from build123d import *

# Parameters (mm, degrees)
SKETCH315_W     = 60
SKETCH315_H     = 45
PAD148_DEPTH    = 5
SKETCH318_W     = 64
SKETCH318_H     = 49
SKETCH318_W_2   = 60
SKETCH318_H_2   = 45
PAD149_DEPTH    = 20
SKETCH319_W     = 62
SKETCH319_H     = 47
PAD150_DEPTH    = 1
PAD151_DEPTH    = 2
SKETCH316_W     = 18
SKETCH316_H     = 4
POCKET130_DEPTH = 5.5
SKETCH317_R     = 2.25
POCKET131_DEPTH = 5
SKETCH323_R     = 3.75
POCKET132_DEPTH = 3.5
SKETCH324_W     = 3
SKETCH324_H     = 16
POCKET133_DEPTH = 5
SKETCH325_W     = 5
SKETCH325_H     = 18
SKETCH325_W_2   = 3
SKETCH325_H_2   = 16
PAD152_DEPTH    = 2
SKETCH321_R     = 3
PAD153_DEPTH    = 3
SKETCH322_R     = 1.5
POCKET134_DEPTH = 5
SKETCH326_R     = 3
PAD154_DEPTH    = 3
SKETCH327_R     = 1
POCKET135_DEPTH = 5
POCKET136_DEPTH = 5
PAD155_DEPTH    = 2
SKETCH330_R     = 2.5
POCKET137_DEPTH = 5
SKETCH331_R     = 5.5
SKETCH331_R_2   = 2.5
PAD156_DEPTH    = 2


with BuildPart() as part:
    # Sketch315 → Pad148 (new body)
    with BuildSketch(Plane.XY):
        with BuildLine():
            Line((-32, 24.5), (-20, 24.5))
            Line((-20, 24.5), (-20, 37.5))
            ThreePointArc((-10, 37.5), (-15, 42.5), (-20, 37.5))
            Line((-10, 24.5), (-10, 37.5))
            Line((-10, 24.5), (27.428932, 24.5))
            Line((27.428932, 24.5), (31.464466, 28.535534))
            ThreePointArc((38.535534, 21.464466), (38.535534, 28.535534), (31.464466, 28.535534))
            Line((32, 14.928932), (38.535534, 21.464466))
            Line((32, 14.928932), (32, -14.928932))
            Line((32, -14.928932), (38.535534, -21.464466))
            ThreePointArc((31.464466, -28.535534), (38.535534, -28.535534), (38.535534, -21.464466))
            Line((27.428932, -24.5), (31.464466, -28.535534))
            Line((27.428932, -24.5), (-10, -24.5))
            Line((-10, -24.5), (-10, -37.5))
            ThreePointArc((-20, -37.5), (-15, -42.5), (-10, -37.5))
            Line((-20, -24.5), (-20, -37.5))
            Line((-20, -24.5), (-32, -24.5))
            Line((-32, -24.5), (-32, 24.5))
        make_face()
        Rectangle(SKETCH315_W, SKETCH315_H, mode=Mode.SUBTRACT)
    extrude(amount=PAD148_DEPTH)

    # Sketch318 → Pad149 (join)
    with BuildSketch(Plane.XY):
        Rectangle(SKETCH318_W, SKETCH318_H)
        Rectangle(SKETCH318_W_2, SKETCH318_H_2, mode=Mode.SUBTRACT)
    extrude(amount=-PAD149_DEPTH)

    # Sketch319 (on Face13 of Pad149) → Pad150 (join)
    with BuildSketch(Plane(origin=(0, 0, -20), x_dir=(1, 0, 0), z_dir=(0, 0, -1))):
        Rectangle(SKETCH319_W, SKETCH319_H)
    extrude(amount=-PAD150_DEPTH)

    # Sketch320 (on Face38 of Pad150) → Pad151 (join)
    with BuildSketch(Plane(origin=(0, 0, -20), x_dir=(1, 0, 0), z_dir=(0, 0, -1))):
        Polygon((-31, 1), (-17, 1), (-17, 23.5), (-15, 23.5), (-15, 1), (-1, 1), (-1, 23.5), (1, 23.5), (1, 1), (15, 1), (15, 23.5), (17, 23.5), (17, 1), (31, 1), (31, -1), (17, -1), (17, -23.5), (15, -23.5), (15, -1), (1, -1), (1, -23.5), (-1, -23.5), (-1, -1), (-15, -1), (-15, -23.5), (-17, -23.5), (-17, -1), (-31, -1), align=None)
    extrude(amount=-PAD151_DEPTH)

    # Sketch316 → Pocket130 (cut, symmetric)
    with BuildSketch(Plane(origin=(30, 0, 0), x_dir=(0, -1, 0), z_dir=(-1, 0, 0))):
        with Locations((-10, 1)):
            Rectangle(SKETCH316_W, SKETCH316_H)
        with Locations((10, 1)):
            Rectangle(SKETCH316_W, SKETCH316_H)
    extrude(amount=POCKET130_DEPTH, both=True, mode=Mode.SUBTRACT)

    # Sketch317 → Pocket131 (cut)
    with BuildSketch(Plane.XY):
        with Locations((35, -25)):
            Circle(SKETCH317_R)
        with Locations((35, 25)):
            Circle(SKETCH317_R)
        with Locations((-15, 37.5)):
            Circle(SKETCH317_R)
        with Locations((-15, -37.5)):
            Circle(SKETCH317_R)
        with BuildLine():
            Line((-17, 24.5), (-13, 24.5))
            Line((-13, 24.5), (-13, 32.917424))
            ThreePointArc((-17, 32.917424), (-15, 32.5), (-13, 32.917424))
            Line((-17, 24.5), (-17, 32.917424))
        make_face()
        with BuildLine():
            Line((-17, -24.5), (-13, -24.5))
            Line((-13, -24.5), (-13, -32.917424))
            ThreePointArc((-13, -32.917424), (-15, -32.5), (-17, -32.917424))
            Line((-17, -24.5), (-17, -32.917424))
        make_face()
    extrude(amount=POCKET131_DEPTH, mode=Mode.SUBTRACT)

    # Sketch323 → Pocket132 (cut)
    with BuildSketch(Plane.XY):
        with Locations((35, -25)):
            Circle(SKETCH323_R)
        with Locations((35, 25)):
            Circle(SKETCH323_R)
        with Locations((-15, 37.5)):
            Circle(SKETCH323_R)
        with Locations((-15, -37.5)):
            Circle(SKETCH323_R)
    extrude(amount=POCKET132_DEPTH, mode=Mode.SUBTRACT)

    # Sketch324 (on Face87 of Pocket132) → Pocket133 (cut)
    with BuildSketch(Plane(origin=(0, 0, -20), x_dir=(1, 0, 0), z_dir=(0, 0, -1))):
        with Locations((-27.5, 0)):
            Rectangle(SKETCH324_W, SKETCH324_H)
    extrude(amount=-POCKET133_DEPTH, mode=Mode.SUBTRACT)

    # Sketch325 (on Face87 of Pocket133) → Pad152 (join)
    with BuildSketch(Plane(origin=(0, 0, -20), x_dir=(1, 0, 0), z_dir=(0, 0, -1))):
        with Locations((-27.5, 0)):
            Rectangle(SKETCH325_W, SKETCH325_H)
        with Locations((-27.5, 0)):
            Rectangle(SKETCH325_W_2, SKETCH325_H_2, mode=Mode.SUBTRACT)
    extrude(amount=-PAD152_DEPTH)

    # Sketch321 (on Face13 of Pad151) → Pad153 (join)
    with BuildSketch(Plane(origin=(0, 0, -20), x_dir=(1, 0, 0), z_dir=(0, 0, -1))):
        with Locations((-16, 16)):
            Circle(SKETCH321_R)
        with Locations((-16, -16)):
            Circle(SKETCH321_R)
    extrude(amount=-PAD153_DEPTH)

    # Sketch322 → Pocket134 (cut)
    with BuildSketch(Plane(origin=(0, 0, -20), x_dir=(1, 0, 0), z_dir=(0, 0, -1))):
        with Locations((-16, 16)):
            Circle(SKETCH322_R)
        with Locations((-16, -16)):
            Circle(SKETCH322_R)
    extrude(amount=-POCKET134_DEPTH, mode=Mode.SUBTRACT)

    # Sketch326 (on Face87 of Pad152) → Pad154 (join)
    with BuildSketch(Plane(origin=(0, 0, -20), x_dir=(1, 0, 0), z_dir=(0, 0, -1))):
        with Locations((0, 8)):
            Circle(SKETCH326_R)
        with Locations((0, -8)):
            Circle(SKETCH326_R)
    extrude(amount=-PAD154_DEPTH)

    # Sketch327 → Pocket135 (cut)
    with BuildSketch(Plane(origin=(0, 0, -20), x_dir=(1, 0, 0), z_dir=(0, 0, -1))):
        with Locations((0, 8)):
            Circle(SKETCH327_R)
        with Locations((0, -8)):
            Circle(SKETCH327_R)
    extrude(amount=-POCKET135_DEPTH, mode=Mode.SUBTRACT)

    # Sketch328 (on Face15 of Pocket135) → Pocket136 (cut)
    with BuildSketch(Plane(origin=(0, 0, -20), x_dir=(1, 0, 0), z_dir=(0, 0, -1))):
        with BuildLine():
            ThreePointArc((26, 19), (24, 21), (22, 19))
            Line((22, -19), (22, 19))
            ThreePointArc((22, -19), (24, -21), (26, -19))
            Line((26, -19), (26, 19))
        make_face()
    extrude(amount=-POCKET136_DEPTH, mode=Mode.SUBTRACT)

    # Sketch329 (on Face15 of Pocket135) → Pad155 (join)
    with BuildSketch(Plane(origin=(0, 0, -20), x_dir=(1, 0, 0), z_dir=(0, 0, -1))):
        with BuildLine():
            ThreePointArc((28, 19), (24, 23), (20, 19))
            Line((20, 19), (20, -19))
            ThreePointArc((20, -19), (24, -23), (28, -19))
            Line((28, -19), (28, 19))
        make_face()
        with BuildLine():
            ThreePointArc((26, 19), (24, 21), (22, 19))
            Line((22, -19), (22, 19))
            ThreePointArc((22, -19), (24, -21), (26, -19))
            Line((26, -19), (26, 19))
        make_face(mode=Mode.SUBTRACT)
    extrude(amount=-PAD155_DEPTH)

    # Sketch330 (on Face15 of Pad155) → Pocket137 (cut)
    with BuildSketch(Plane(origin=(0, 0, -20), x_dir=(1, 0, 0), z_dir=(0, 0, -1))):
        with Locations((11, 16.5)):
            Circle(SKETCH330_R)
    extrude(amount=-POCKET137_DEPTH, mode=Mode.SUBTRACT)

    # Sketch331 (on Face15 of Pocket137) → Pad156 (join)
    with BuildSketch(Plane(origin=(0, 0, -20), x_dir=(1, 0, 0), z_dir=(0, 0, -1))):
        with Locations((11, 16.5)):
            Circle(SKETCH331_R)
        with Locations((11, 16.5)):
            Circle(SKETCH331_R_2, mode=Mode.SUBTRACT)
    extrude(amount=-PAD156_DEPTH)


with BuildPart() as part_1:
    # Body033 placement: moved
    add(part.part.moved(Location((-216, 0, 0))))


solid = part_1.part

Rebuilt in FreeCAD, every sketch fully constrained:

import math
import FreeCAD as App
import Part
import Sketcher

doc = App.newDocument("Part")
body = doc.addObject("PartDesign::Body", "Body")

# Sketch on XY plane
sketch1 = body.newObject("Sketcher::SketchObject", "Sketch")
sketch1.AttachmentSupport = (doc.getObject("XY_Plane"), [""])
sketch1.MapMode = "FlatFace"
sketch1.addGeometry([
    Part.LineSegment(App.Vector(-20, 24, 0), App.Vector(-32, 24, 0)),  # 0
    Part.LineSegment(App.Vector(-32, 24, 0), App.Vector(-32, -24, 0)),  # 1
    Part.LineSegment(App.Vector(-32, -24, 0), App.Vector(-20, -24, 0)),  # 2
    Part.LineSegment(App.Vector(-20, -24, 0), App.Vector(-20, -38, 0)),  # 3
    Part.ArcOfCircle(Part.Circle(App.Vector(-15, -38, 0), App.Vector(0, 0, 1), 5), math.radians(180), math.radians(360)),  # 4
    Part.LineSegment(App.Vector(-10, -38, 0), App.Vector(-10, -24, 0)),  # 5
    Part.LineSegment(App.Vector(-10, -24, 0), App.Vector(27, -24, 0)),  # 6
    Part.LineSegment(App.Vector(27, -24, 0), App.Vector(31, -29, 0)),  # 7
    Part.ArcOfCircle(Part.Circle(App.Vector(35, -25, 0), App.Vector(0, 0, 1), 5), math.radians(-135), math.radians(45)),  # 8
    Part.LineSegment(App.Vector(39, -21, 0), App.Vector(32, -15, 0)),  # 9
    Part.LineSegment(App.Vector(32, -15, 0), App.Vector(32, 15, 0)),  # 10
    Part.LineSegment(App.Vector(32, 15, 0), App.Vector(39, 21, 0)),  # 11
    Part.ArcOfCircle(Part.Circle(App.Vector(35, 25, 0), App.Vector(0, 0, 1), 5), math.radians(-45), math.radians(135)),  # 12
    Part.LineSegment(App.Vector(31, 29, 0), App.Vector(27, 24, 0)),  # 13
    Part.LineSegment(App.Vector(27, 24, 0), App.Vector(-10, 24, 0)),  # 14
    Part.LineSegment(App.Vector(-10, 24, 0), App.Vector(-10, 38, 0)),  # 15
    Part.ArcOfCircle(Part.Circle(App.Vector(-15, 38, 0), App.Vector(0, 0, 1), 5), math.radians(0), math.radians(180)),  # 16
    Part.LineSegment(App.Vector(-20, 38, 0), App.Vector(-20, 24, 0)),  # 17
    Part.LineSegment(App.Vector(-30, -22, 0), App.Vector(-30, 22, 0)),  # 18
    Part.LineSegment(App.Vector(-30, 22, 0), App.Vector(30, 22, 0)),  # 19
    Part.LineSegment(App.Vector(30, 22, 0), App.Vector(30, -22, 0)),  # 20
    Part.LineSegment(App.Vector(30, -22, 0), App.Vector(-30, -22, 0)),  # 21
], False)
sketch1.addConstraint([
    Sketcher.Constraint("Coincident", 0, 2, 1, 1),
    Sketcher.Constraint("Coincident", 1, 2, 2, 1),
    Sketcher.Constraint("Coincident", 2, 2, 3, 1),
    Sketcher.Constraint("Tangent", 3, 2, 4, 1),
    Sketcher.Constraint("Tangent", 4, 2, 5, 1),
    Sketcher.Constraint("Coincident", 5, 2, 6, 1),
    Sketcher.Constraint("Coincident", 6, 2, 7, 1),
    Sketcher.Constraint("Tangent", 7, 2, 8, 1),
    Sketcher.Constraint("Tangent", 8, 2, 9, 1),
    Sketcher.Constraint("Coincident", 9, 2, 10, 1),
    Sketcher.Constraint("Coincident", 10, 2, 11, 1),
    Sketcher.Constraint("Tangent", 11, 2, 12, 1),
    Sketcher.Constraint("Tangent", 12, 2, 13, 1),
    Sketcher.Constraint("Coincident", 13, 2, 14, 1),
    Sketcher.Constraint("Coincident", 14, 2, 15, 1),
    Sketcher.Constraint("Tangent", 15, 2, 16, 1),
    Sketcher.Constraint("Tangent", 16, 2, 17, 1),
    Sketcher.Constraint("Coincident", 17, 2, 0, 1),
    Sketcher.Constraint("Coincident", 18, 2, 19, 1),
    Sketcher.Constraint("Coincident", 19, 2, 20, 1),
    Sketcher.Constraint("Coincident", 20, 2, 21, 1),
    Sketcher.Constraint("Coincident", 21, 2, 18, 1),
    Sketcher.Constraint("Horizontal", 0),
    Sketcher.Constraint("Vertical", 1),
    Sketcher.Constraint("Horizontal", 2),
    Sketcher.Constraint("Vertical", 3),
    Sketcher.Constraint("Vertical", 5),
    Sketcher.Constraint("Horizontal", 6),
    Sketcher.Constraint("Vertical", 10),
    Sketcher.Constraint("Horizontal", 14),
    Sketcher.Constraint("Vertical", 15),
    Sketcher.Constraint("Vertical", 17),
    Sketcher.Constraint("Vertical", 18),
    Sketcher.Constraint("Horizontal", 19),
    Sketcher.Constraint("Vertical", 20),
    Sketcher.Constraint("Horizontal", 21),
    Sketcher.Constraint("Equal", 4, 8),
    Sketcher.Constraint("Equal", 8, 12),
    Sketcher.Constraint("Equal", 12, 16),
    Sketcher.Constraint("Symmetric", 18, 2, 20, 2, -1, 1),
    Sketcher.Constraint("Symmetric", 8, 3, 12, 3, -1),
    Sketcher.Constraint("Symmetric", 4, 3, 16, 3, -1),
    Sketcher.Constraint("Symmetric", 6, 2, 13, 2, -1),
    Sketcher.Constraint("Parallel", 7, 9),
    Sketcher.Constraint("Perpendicular", 9, 11),
    Sketcher.Constraint("Parallel", 11, 13),
    Sketcher.Constraint("Horizontal", 2, 2, 5, 2),
    Sketcher.Constraint("Horizontal", 0, 2, 13, 2),
    Sketcher.Constraint("Radius", 4, 5.0),
    Sketcher.Constraint("DistanceX", 0, 2, 0, 1, 12.0),
    Sketcher.Constraint("DistanceX", 19, 1, 19, 2, 60.0),
    Sketcher.Constraint("DistanceY", 1, 2, 1, 1, 49.0),
    Sketcher.Constraint("DistanceY", 3, 2, 3, 1, 13.0),
    Sketcher.Constraint("DistanceY", 18, 1, 18, 2, 45.0),
    Sketcher.Constraint("DistanceX", 4, 3, -1, 1, 15.0),
    Sketcher.Constraint("DistanceX", -1, 1, 8, 3, 35.0),
    Sketcher.Constraint("DistanceY", 8, 3, -1, 1, 25.0),
    Sketcher.Constraint("DistanceX", -1, 1, 9, 2, 32.0),
])
pad1 = body.newObject("PartDesign::Pad", "Pad")
pad1.Profile = sketch1
pad1.Length = 5

# Sketch on XY plane
sketch2 = body.newObject("Sketcher::SketchObject", "Sketch001")
sketch2.AttachmentSupport = (doc.getObject("XY_Plane"), [""])
sketch2.MapMode = "FlatFace"
sketch2.addGeometry([
    Part.LineSegment(App.Vector(-32, 24, 0), App.Vector(-32, -24, 0)),  # 0
    Part.LineSegment(App.Vector(-32, -24, 0), App.Vector(32, -24, 0)),  # 1
    Part.LineSegment(App.Vector(32, -24, 0), App.Vector(32, 24, 0)),  # 2
    Part.LineSegment(App.Vector(32, 24, 0), App.Vector(-32, 24, 0)),  # 3
    Part.LineSegment(App.Vector(30, -22, 0), App.Vector(-30, -22, 0)),  # 4
    Part.LineSegment(App.Vector(-30, -22, 0), App.Vector(-30, 22, 0)),  # 5
    Part.LineSegment(App.Vector(-30, 22, 0), App.Vector(30, 22, 0)),  # 6
    Part.LineSegment(App.Vector(30, 22, 0), App.Vector(30, -22, 0)),  # 7
], False)
sketch2.addConstraint([
    Sketcher.Constraint("Coincident", 0, 2, 1, 1),
    Sketcher.Constraint("Coincident", 1, 2, 2, 1),
    Sketcher.Constraint("Coincident", 2, 2, 3, 1),
    Sketcher.Constraint("Coincident", 3, 2, 0, 1),
    Sketcher.Constraint("Coincident", 4, 2, 5, 1),
    Sketcher.Constraint("Coincident", 5, 2, 6, 1),
    Sketcher.Constraint("Coincident", 6, 2, 7, 1),
    Sketcher.Constraint("Coincident", 7, 2, 4, 1),
    Sketcher.Constraint("Vertical", 0),
    Sketcher.Constraint("Horizontal", 1),
    Sketcher.Constraint("Vertical", 2),
    Sketcher.Constraint("Horizontal", 3),
    Sketcher.Constraint("Horizontal", 4),
    Sketcher.Constraint("Vertical", 5),
    Sketcher.Constraint("Horizontal", 6),
    Sketcher.Constraint("Vertical", 7),
    Sketcher.Constraint("Symmetric", 0, 2, 2, 2, -1, 1),
    Sketcher.Constraint("Symmetric", 4, 2, 6, 2, -1, 1),
    Sketcher.Constraint("DistanceX", 1, 1, 1, 2, 64.0),
    Sketcher.Constraint("DistanceX", 4, 2, 4, 1, 60.0),
    Sketcher.Constraint("DistanceY", 0, 2, 0, 1, 49.0),
    Sketcher.Constraint("DistanceY", 5, 1, 5, 2, 45.0),
])
pad2 = body.newObject("PartDesign::Pad", "Pad001")
pad2.Profile = sketch2
pad2.Length = 20
pad2.Reversed = True

# Sketch on XY plane
sketch3 = body.newObject("Sketcher::SketchObject", "Sketch002")
sketch3.AttachmentSupport = (doc.getObject("XY_Plane"), [""])
sketch3.MapMode = "FlatFace"
sketch3.AttachmentOffset = App.Placement(App.Vector(0, 0, -20), App.Rotation())
sketch3.addGeometry([
    Part.LineSegment(App.Vector(-31, -24, 0), App.Vector(-31, 24, 0)),
    Part.LineSegment(App.Vector(-31, 24, 0), App.Vector(31, 24, 0)),
    Part.LineSegment(App.Vector(31, 24, 0), App.Vector(31, -24, 0)),
    Part.LineSegment(App.Vector(31, -24, 0), App.Vector(-31, -24, 0)),
], False)
sketch3.addConstraint([
    Sketcher.Constraint("Coincident", 0, 2, 1, 1),
    Sketcher.Constraint("Coincident", 1, 2, 2, 1),
    Sketcher.Constraint("Coincident", 2, 2, 3, 1),
    Sketcher.Constraint("Coincident", 3, 2, 0, 1),
    Sketcher.Constraint("Vertical", 0),
    Sketcher.Constraint("Horizontal", 1),
    Sketcher.Constraint("Vertical", 2),
    Sketcher.Constraint("Horizontal", 3),
    Sketcher.Constraint("Symmetric", 0, 2, 2, 2, -1, 1),
    Sketcher.Constraint("DistanceX", 1, 1, 1, 2, 62.0),
    Sketcher.Constraint("DistanceY", 0, 1, 0, 2, 47.0),
])
pad3 = body.newObject("PartDesign::Pad", "Pad002")
pad3.Profile = sketch3
pad3.Length = 1

# Sketch on XY plane
sketch4 = body.newObject("Sketcher::SketchObject", "Sketch003")
sketch4.AttachmentSupport = (doc.getObject("XY_Plane"), [""])
sketch4.MapMode = "FlatFace"
sketch4.AttachmentOffset = App.Placement(App.Vector(0, 0, -20), App.Rotation())
sketch4.addGeometry([
    Part.LineSegment(App.Vector(-17, -1, 0), App.Vector(-31, -1, 0)),  # 0
    Part.LineSegment(App.Vector(-31, -1, 0), App.Vector(-31, 1, 0)),  # 1
    Part.LineSegment(App.Vector(-31, 1, 0), App.Vector(-17, 1, 0)),  # 2
    Part.LineSegment(App.Vector(-17, 1, 0), App.Vector(-17, 23.5, 0)),  # 3
    Part.LineSegment(App.Vector(-17, 23.5, 0), App.Vector(-15, 23.5, 0)),  # 4
    Part.LineSegment(App.Vector(-15, 23.5, 0), App.Vector(-15, 1, 0)),  # 5
    Part.LineSegment(App.Vector(-15, 1, 0), App.Vector(-1, 1, 0)),  # 6
    Part.LineSegment(App.Vector(-1, 1, 0), App.Vector(-1, 23.5, 0)),  # 7
    Part.LineSegment(App.Vector(-1, 23.5, 0), App.Vector(1, 23.5, 0)),  # 8
    Part.LineSegment(App.Vector(1, 23.5, 0), App.Vector(1, 1, 0)),  # 9
    Part.LineSegment(App.Vector(1, 1, 0), App.Vector(15, 1, 0)),  # 10
    Part.LineSegment(App.Vector(15, 1, 0), App.Vector(15, 23.5, 0)),  # 11
    Part.LineSegment(App.Vector(15, 23.5, 0), App.Vector(17, 23.5, 0)),  # 12
    Part.LineSegment(App.Vector(17, 23.5, 0), App.Vector(17, 1, 0)),  # 13
    Part.LineSegment(App.Vector(17, 1, 0), App.Vector(31, 1, 0)),  # 14
    Part.LineSegment(App.Vector(31, 1, 0), App.Vector(31, -1, 0)),  # 15
    Part.LineSegment(App.Vector(31, -1, 0), App.Vector(17, -1, 0)),  # 16
    Part.LineSegment(App.Vector(17, -1, 0), App.Vector(17, -23.5, 0)),  # 17
    Part.LineSegment(App.Vector(17, -23.5, 0), App.Vector(15, -23.5, 0)),  # 18
    Part.LineSegment(App.Vector(15, -23.5, 0), App.Vector(15, -1, 0)),  # 19
    Part.LineSegment(App.Vector(15, -1, 0), App.Vector(1, -1, 0)),  # 20
    Part.LineSegment(App.Vector(1, -1, 0), App.Vector(1, -23.5, 0)),  # 21
    Part.LineSegment(App.Vector(1, -23.5, 0), App.Vector(-1, -23.5, 0)),  # 22
    Part.LineSegment(App.Vector(-1, -23.5, 0), App.Vector(-1, -1, 0)),  # 23
    Part.LineSegment(App.Vector(-1, -1, 0), App.Vector(-15, -1, 0)),  # 24
    Part.LineSegment(App.Vector(-15, -1, 0), App.Vector(-15, -23.5, 0)),  # 25
    Part.LineSegment(App.Vector(-15, -23.5, 0), App.Vector(-17, -23.5, 0)),  # 26
    Part.LineSegment(App.Vector(-17, -23.5, 0), App.Vector(-17, -1, 0)),  # 27
], False)
sketch4.addConstraint([
    Sketcher.Constraint("Coincident", 0, 2, 1, 1),
    Sketcher.Constraint("Coincident", 1, 2, 2, 1),
    Sketcher.Constraint("Coincident", 2, 2, 3, 1),
    Sketcher.Constraint("Coincident", 3, 2, 4, 1),
    Sketcher.Constraint("Coincident", 4, 2, 5, 1),
    Sketcher.Constraint("Coincident", 5, 2, 6, 1),
    Sketcher.Constraint("Coincident", 6, 2, 7, 1),
    Sketcher.Constraint("Coincident", 7, 2, 8, 1),
    Sketcher.Constraint("Coincident", 8, 2, 9, 1),
    Sketcher.Constraint("Coincident", 9, 2, 10, 1),
    Sketcher.Constraint("Coincident", 10, 2, 11, 1),
    Sketcher.Constraint("Coincident", 11, 2, 12, 1),
    Sketcher.Constraint("Coincident", 12, 2, 13, 1),
    Sketcher.Constraint("Coincident", 13, 2, 14, 1),
    Sketcher.Constraint("Coincident", 14, 2, 15, 1),
    Sketcher.Constraint("Coincident", 15, 2, 16, 1),
    Sketcher.Constraint("Coincident", 16, 2, 17, 1),
    Sketcher.Constraint("Coincident", 17, 2, 18, 1),
    Sketcher.Constraint("Coincident", 18, 2, 19, 1),
    Sketcher.Constraint("Coincident", 19, 2, 20, 1),
    Sketcher.Constraint("Coincident", 20, 2, 21, 1),
    Sketcher.Constraint("Coincident", 21, 2, 22, 1),
    Sketcher.Constraint("Coincident", 22, 2, 23, 1),
    Sketcher.Constraint("Coincident", 23, 2, 24, 1),
    Sketcher.Constraint("Coincident", 24, 2, 25, 1),
    Sketcher.Constraint("Coincident", 25, 2, 26, 1),
    Sketcher.Constraint("Coincident", 26, 2, 27, 1),
    Sketcher.Constraint("Coincident", 27, 2, 0, 1),
    Sketcher.Constraint("Horizontal", 0),
    Sketcher.Constraint("Vertical", 1),
    Sketcher.Constraint("Horizontal", 2),
    Sketcher.Constraint("Vertical", 3),
    Sketcher.Constraint("Horizontal", 4),
    Sketcher.Constraint("Vertical", 5),
    Sketcher.Constraint("Horizontal", 6),
    Sketcher.Constraint("Vertical", 7),
    Sketcher.Constraint("Horizontal", 8),
    Sketcher.Constraint("Vertical", 9),
    Sketcher.Constraint("Horizontal", 10),
    Sketcher.Constraint("Vertical", 11),
    Sketcher.Constraint("Horizontal", 12),
    Sketcher.Constraint("Vertical", 13),
    Sketcher.Constraint("Horizontal", 14),
    Sketcher.Constraint("Vertical", 15),
    Sketcher.Constraint("Horizontal", 16),
    Sketcher.Constraint("Vertical", 17),
    Sketcher.Constraint("Horizontal", 18),
    Sketcher.Constraint("Vertical", 19),
    Sketcher.Constraint("Horizontal", 20),
    Sketcher.Constraint("Vertical", 21),
    Sketcher.Constraint("Horizontal", 22),
    Sketcher.Constraint("Vertical", 23),
    Sketcher.Constraint("Horizontal", 24),
    Sketcher.Constraint("Vertical", 25),
    Sketcher.Constraint("Horizontal", 26),
    Sketcher.Constraint("Vertical", 27),
    Sketcher.Constraint("Symmetric", 0, 2, 14, 2, -1, 1),
    Sketcher.Constraint("Symmetric", 2, 2, 16, 2, -1, 1),
    Sketcher.Constraint("Symmetric", 4, 2, 18, 2, -1, 1),
    Sketcher.Constraint("Symmetric", 6, 2, 20, 2, -1, 1),
    Sketcher.Constraint("Symmetric", 8, 2, 22, 2, -1, 1),
    Sketcher.Constraint("Symmetric", 10, 2, 24, 2, -1, 1),
    Sketcher.Constraint("Symmetric", 12, 2, 26, 2, -1, 1),
    Sketcher.Constraint("Symmetric", 6, 2, 9, 2, -2),
    Sketcher.Constraint("Symmetric", 4, 2, 11, 2, -2),
    Sketcher.Constraint("Symmetric", 2, 2, 13, 2, -2),
    Sketcher.Constraint("Horizontal", 2, 2, 5, 2),
    Sketcher.Constraint("Horizontal", 4, 2, 7, 2),
    Sketcher.Constraint("Equal", 2, 6),
    Sketcher.Constraint("Equal", 4, 8),
    Sketcher.Constraint("Equal", 26, 1),
    Sketcher.Constraint("DistanceX", 0, 2, 0, 1, 14.0),
    Sketcher.Constraint("DistanceX", 4, 1, 4, 2, 2.0),
    Sketcher.Constraint("DistanceY", 3, 1, 3, 2, 22.5),
])
pad4 = body.newObject("PartDesign::Pad", "Pad003")
pad4.Profile = sketch4
pad4.Length = 2

# Sketch on YZ plane
sketch5 = body.newObject("Sketcher::SketchObject", "Sketch004")
sketch5.AttachmentSupport = (doc.getObject("YZ_Plane"), [""])
sketch5.MapMode = "FlatFace"
sketch5.AttachmentOffset = App.Placement(App.Vector(0, 0, 30), App.Rotation())
sketch5.addGeometry([
    Part.LineSegment(App.Vector(19, 3, 0), App.Vector(19, -1, 0)),  # 0
    Part.LineSegment(App.Vector(19, -1, 0), App.Vector(1, -1, 0)),  # 1
    Part.LineSegment(App.Vector(1, -1, 0), App.Vector(1, 3, 0)),  # 2
    Part.LineSegment(App.Vector(1, 3, 0), App.Vector(19, 3, 0)),  # 3
    Part.LineSegment(App.Vector(-1, 3, 0), App.Vector(-1, -1, 0)),  # 4
    Part.LineSegment(App.Vector(-1, -1, 0), App.Vector(-19, -1, 0)),  # 5
    Part.LineSegment(App.Vector(-19, -1, 0), App.Vector(-19, 3, 0)),  # 6
    Part.LineSegment(App.Vector(-19, 3, 0), App.Vector(-1, 3, 0)),  # 7
], False)
sketch5.addConstraint([
    Sketcher.Constraint("Coincident", 0, 2, 1, 1),
    Sketcher.Constraint("Coincident", 1, 2, 2, 1),
    Sketcher.Constraint("Coincident", 2, 2, 3, 1),
    Sketcher.Constraint("Coincident", 3, 2, 0, 1),
    Sketcher.Constraint("Coincident", 4, 2, 5, 1),
    Sketcher.Constraint("Coincident", 5, 2, 6, 1),
    Sketcher.Constraint("Coincident", 6, 2, 7, 1),
    Sketcher.Constraint("Coincident", 7, 2, 4, 1),
    Sketcher.Constraint("Vertical", 0),
    Sketcher.Constraint("Horizontal", 1),
    Sketcher.Constraint("Vertical", 2),
    Sketcher.Constraint("Horizontal", 3),
    Sketcher.Constraint("Vertical", 4),
    Sketcher.Constraint("Horizontal", 5),
    Sketcher.Constraint("Vertical", 6),
    Sketcher.Constraint("Horizontal", 7),
    Sketcher.Constraint("Symmetric", 1, 2, 4, 2, -2),
    Sketcher.Constraint("Symmetric", 3, 2, 6, 2, -2),
    Sketcher.Constraint("DistanceX", 1, 2, 1, 1, 18.0),
    Sketcher.Constraint("DistanceY", 0, 2, 0, 1, 4.0),
    Sketcher.Constraint("DistanceX", -1, 1, 0, 2, 19.0),
    Sketcher.Constraint("DistanceY", 0, 2, -1, 1, 1.0),
])
pocket1 = body.newObject("PartDesign::Pocket", "Pocket")
pocket1.Profile = sketch5
pocket1.Length = 11
pocket1.Midplane = True

# Sketch on XY plane
sketch6 = body.newObject("Sketcher::SketchObject", "Sketch005")
sketch6.AttachmentSupport = (doc.getObject("XY_Plane"), [""])
sketch6.MapMode = "FlatFace"
sketch6.addGeometry([
    Part.Circle(App.Vector(35, -25, 0), App.Vector(0, 0, 1), 2.2),  # 0
    Part.Circle(App.Vector(35, 25, 0), App.Vector(0, 0, 1), 2.2),  # 1
    Part.Circle(App.Vector(-15, 37.5, 0), App.Vector(0, 0, 1), 2.2),  # 2
    Part.Circle(App.Vector(-15, -37.5, 0), App.Vector(0, 0, 1), 2.2),  # 3
    Part.LineSegment(App.Vector(-17, 24.5, 0), App.Vector(-13, 24.5, 0)),  # 4
    Part.LineSegment(App.Vector(-13, 24.5, 0), App.Vector(-13, 32.9, 0)),  # 5
    Part.ArcOfCircle(Part.Circle(App.Vector(-15, 37.5, 0), App.Vector(0, 0, 1), 5), math.radians(-114), math.radians(-66)),  # 6
    Part.LineSegment(App.Vector(-17, 32.9, 0), App.Vector(-17, 24.5, 0)),  # 7
    Part.LineSegment(App.Vector(-13, -24.5, 0), App.Vector(-17, -24.5, 0)),  # 8
    Part.LineSegment(App.Vector(-17, -24.5, 0), App.Vector(-17, -32.9, 0)),  # 9
    Part.ArcOfCircle(Part.Circle(App.Vector(-15, -37.5, 0), App.Vector(0, 0, 1), 5), math.radians(66), math.radians(114)),  # 10
    Part.LineSegment(App.Vector(-13, -32.9, 0), App.Vector(-13, -24.5, 0)),  # 11
], False)
sketch6.addConstraint([
    Sketcher.Constraint("Coincident", 4, 2, 5, 1),
    Sketcher.Constraint("Coincident", 5, 2, 6, 2),
    Sketcher.Constraint("Coincident", 6, 1, 7, 1),
    Sketcher.Constraint("Coincident", 7, 2, 4, 1),
    Sketcher.Constraint("Coincident", 8, 2, 9, 1),
    Sketcher.Constraint("Coincident", 9, 2, 10, 2),
    Sketcher.Constraint("Coincident", 10, 1, 11, 1),
    Sketcher.Constraint("Coincident", 11, 2, 8, 1),
    Sketcher.Constraint("Horizontal", 4),
    Sketcher.Constraint("Vertical", 5),
    Sketcher.Constraint("Vertical", 7),
    Sketcher.Constraint("Horizontal", 8),
    Sketcher.Constraint("Vertical", 9),
    Sketcher.Constraint("Vertical", 11),
    Sketcher.Constraint("Coincident", 6, 3, 2, 3),
    Sketcher.Constraint("Coincident", 10, 3, 3, 3),
    Sketcher.Constraint("Equal", 0, 1),
    Sketcher.Constraint("Equal", 1, 2),
    Sketcher.Constraint("Equal", 2, 3),
    Sketcher.Constraint("Equal", 6, 10),
    Sketcher.Constraint("Symmetric", 0, 3, 1, 3, -1),
    Sketcher.Constraint("Symmetric", 2, 3, 3, 3, -1),
    Sketcher.Constraint("Symmetric", 7, 2, 8, 2, -1),
    Sketcher.Constraint("Horizontal", 5, 2, 6, 1),
    Sketcher.Constraint("Horizontal", 9, 2, 10, 1),
    Sketcher.Constraint("Diameter", 0, 4.5),
    Sketcher.Constraint("DistanceX", 4, 1, 4, 2, 4.0),
    Sketcher.Constraint("DistanceX", -1, 1, 0, 3, 35.0),
    Sketcher.Constraint("DistanceY", 0, 3, -1, 1, 25.0),
    Sketcher.Constraint("DistanceX", 2, 3, -1, 1, 15.0),
    Sketcher.Constraint("DistanceY", 3, 3, 2, 3, 75.0),
    Sketcher.Constraint("DistanceY", 4, 2, 2, 3, 13.0),
    Sketcher.Constraint("Radius", 6, 5.000003),
])
pocket2 = body.newObject("PartDesign::Pocket", "Pocket001")
pocket2.Profile = sketch6
pocket2.Length = 5
pocket2.Reversed = True

# Sketch on XY plane
sketch7 = body.newObject("Sketcher::SketchObject", "Sketch006")
sketch7.AttachmentSupport = (doc.getObject("XY_Plane"), [""])
sketch7.MapMode = "FlatFace"
sketch7.addGeometry([
    Part.Circle(App.Vector(35, -25, 0), App.Vector(0, 0, 1), 3.8),
    Part.Circle(App.Vector(35, 25, 0), App.Vector(0, 0, 1), 3.8),
    Part.Circle(App.Vector(-15, 37.5, 0), App.Vector(0, 0, 1), 3.8),
    Part.Circle(App.Vector(-15, -37.5, 0), App.Vector(0, 0, 1), 3.8),
], False)
sketch7.addConstraint([
    Sketcher.Constraint("Equal", 0, 1),
    Sketcher.Constraint("Equal", 1, 2),
    Sketcher.Constraint("Equal", 2, 3),
    Sketcher.Constraint("Symmetric", 0, 3, 1, 3, -1),
    Sketcher.Constraint("Symmetric", 2, 3, 3, 3, -1),
    Sketcher.Constraint("Diameter", 0, 7.5),
    Sketcher.Constraint("DistanceX", -1, 1, 0, 3, 35.0),
    Sketcher.Constraint("DistanceY", 0, 3, -1, 1, 25.0),
    Sketcher.Constraint("DistanceX", 2, 3, -1, 1, 15.0),
    Sketcher.Constraint("DistanceY", 3, 3, 2, 3, 75.0),
])
pocket3 = body.newObject("PartDesign::Pocket", "Pocket002")
pocket3.Profile = sketch7
pocket3.Length = 3.5
pocket3.Reversed = True

# Sketch on XY plane
sketch8 = body.newObject("Sketcher::SketchObject", "Sketch007")
sketch8.AttachmentSupport = (doc.getObject("XY_Plane"), [""])
sketch8.MapMode = "FlatFace"
sketch8.AttachmentOffset = App.Placement(App.Vector(0, 0, -20), App.Rotation())
sketch8.addGeometry([
    Part.LineSegment(App.Vector(-29, -8, 0), App.Vector(-29, 8, 0)),
    Part.LineSegment(App.Vector(-29, 8, 0), App.Vector(-26, 8, 0)),
    Part.LineSegment(App.Vector(-26, 8, 0), App.Vector(-26, -8, 0)),
    Part.LineSegment(App.Vector(-26, -8, 0), App.Vector(-29, -8, 0)),
], False)
sketch8.addConstraint([
    Sketcher.Constraint("Coincident", 0, 2, 1, 1),
    Sketcher.Constraint("Coincident", 1, 2, 2, 1),
    Sketcher.Constraint("Coincident", 2, 2, 3, 1),
    Sketcher.Constraint("Coincident", 3, 2, 0, 1),
    Sketcher.Constraint("Vertical", 0),
    Sketcher.Constraint("Horizontal", 1),
    Sketcher.Constraint("Vertical", 2),
    Sketcher.Constraint("Horizontal", 3),
    Sketcher.Constraint("DistanceX", 1, 1, 1, 2, 3.0),
    Sketcher.Constraint("DistanceY", 0, 1, 0, 2, 16.0),
    Sketcher.Constraint("DistanceX", 0, 2, -1, 1, 29.0),
    Sketcher.Constraint("DistanceY", -1, 1, 0, 2, 8.0),
])
pocket4 = body.newObject("PartDesign::Pocket", "Pocket003")
pocket4.Profile = sketch8
pocket4.Length = 5
pocket4.Reversed = True

# Sketch on XY plane
sketch9 = body.newObject("Sketcher::SketchObject", "Sketch008")
sketch9.AttachmentSupport = (doc.getObject("XY_Plane"), [""])
sketch9.MapMode = "FlatFace"
sketch9.AttachmentOffset = App.Placement(App.Vector(0, 0, -20), App.Rotation())
sketch9.addGeometry([
    Part.LineSegment(App.Vector(-30, -9, 0), App.Vector(-30, 9, 0)),  # 0
    Part.LineSegment(App.Vector(-30, 9, 0), App.Vector(-25, 9, 0)),  # 1
    Part.LineSegment(App.Vector(-25, 9, 0), App.Vector(-25, -9, 0)),  # 2
    Part.LineSegment(App.Vector(-25, -9, 0), App.Vector(-30, -9, 0)),  # 3
    Part.LineSegment(App.Vector(-26, 8, 0), App.Vector(-29, 8, 0)),  # 4
    Part.LineSegment(App.Vector(-29, 8, 0), App.Vector(-29, -8, 0)),  # 5
    Part.LineSegment(App.Vector(-29, -8, 0), App.Vector(-26, -8, 0)),  # 6
    Part.LineSegment(App.Vector(-26, -8, 0), App.Vector(-26, 8, 0)),  # 7
], False)
sketch9.addConstraint([
    Sketcher.Constraint("Coincident", 0, 2, 1, 1),
    Sketcher.Constraint("Coincident", 1, 2, 2, 1),
    Sketcher.Constraint("Coincident", 2, 2, 3, 1),
    Sketcher.Constraint("Coincident", 3, 2, 0, 1),
    Sketcher.Constraint("Coincident", 4, 2, 5, 1),
    Sketcher.Constraint("Coincident", 5, 2, 6, 1),
    Sketcher.Constraint("Coincident", 6, 2, 7, 1),
    Sketcher.Constraint("Coincident", 7, 2, 4, 1),
    Sketcher.Constraint("Vertical", 0),
    Sketcher.Constraint("Horizontal", 1),
    Sketcher.Constraint("Vertical", 2),
    Sketcher.Constraint("Horizontal", 3),
    Sketcher.Constraint("Horizontal", 4),
    Sketcher.Constraint("Vertical", 5),
    Sketcher.Constraint("Horizontal", 6),
    Sketcher.Constraint("Vertical", 7),
    Sketcher.Constraint("DistanceX", 1, 1, 1, 2, 5.0),
    Sketcher.Constraint("DistanceX", 4, 2, 4, 1, 3.0),
    Sketcher.Constraint("DistanceY", 0, 1, 0, 2, 18.0),
    Sketcher.Constraint("DistanceY", 5, 2, 5, 1, 16.0),
    Sketcher.Constraint("DistanceX", 0, 2, -1, 1, 30.0),
    Sketcher.Constraint("DistanceY", -1, 1, 0, 2, 9.0),
    Sketcher.Constraint("DistanceX", 4, 2, -1, 1, 29.0),
    Sketcher.Constraint("DistanceY", -1, 1, 4, 2, 8.0),
])
pad5 = body.newObject("PartDesign::Pad", "Pad004")
pad5.Profile = sketch9
pad5.Length = 2

# Sketch on XY plane
sketch10 = body.newObject("Sketcher::SketchObject", "Sketch009")
sketch10.AttachmentSupport = (doc.getObject("XY_Plane"), [""])
sketch10.MapMode = "FlatFace"
sketch10.AttachmentOffset = App.Placement(App.Vector(0, 0, -20), App.Rotation())
sketch10.addGeometry([
    Part.Circle(App.Vector(-16, -16, 0), App.Vector(0, 0, 1), 3),
    Part.Circle(App.Vector(-16, 16, 0), App.Vector(0, 0, 1), 3),
], False)
sketch10.addConstraint([
    Sketcher.Constraint("Equal", 0, 1),
    Sketcher.Constraint("Symmetric", 0, 3, 1, 3, -1),
    Sketcher.Constraint("Diameter", 0, 6.0),
    Sketcher.Constraint("DistanceX", 0, 3, -1, 1, 16.0),
    Sketcher.Constraint("DistanceY", 0, 3, -1, 1, 16.0),
])
pad6 = body.newObject("PartDesign::Pad", "Pad005")
pad6.Profile = sketch10
pad6.Length = 3

# Sketch on XY plane
sketch11 = body.newObject("Sketcher::SketchObject", "Sketch010")
sketch11.AttachmentSupport = (doc.getObject("XY_Plane"), [""])
sketch11.MapMode = "FlatFace"
sketch11.AttachmentOffset = App.Placement(App.Vector(0, 0, -20), App.Rotation())
sketch11.addGeometry([
    Part.Circle(App.Vector(-16, -16, 0), App.Vector(0, 0, 1), 1.5),
    Part.Circle(App.Vector(-16, 16, 0), App.Vector(0, 0, 1), 1.5),
], False)
sketch11.addConstraint([
    Sketcher.Constraint("Equal", 0, 1),
    Sketcher.Constraint("Symmetric", 0, 3, 1, 3, -1),
    Sketcher.Constraint("Diameter", 0, 3.0),
    Sketcher.Constraint("DistanceX", 0, 3, -1, 1, 16.0),
    Sketcher.Constraint("DistanceY", 0, 3, -1, 1, 16.0),
])
pocket5 = body.newObject("PartDesign::Pocket", "Pocket004")
pocket5.Profile = sketch11
pocket5.Length = 5
pocket5.Reversed = True

# Sketch on XY plane
sketch12 = body.newObject("Sketcher::SketchObject", "Sketch011")
sketch12.AttachmentSupport = (doc.getObject("XY_Plane"), [""])
sketch12.MapMode = "FlatFace"
sketch12.AttachmentOffset = App.Placement(App.Vector(0, 0, -20), App.Rotation())
sketch12.addGeometry([
    Part.Circle(App.Vector(0, -8, 0), App.Vector(0, 0, 1), 3),
    Part.Circle(App.Vector(0, 8, 0), App.Vector(0, 0, 1), 3),
], False)
sketch12.addConstraint([
    Sketcher.Constraint("Equal", 0, 1),
    Sketcher.Constraint("Symmetric", 0, 3, 1, 3, -1, 1),
    Sketcher.Constraint("PointOnObject", 0, 3, -2),
    Sketcher.Constraint("Diameter", 0, 6.0),
    Sketcher.Constraint("DistanceY", 0, 3, -1, 1, 8.0),
])
pad7 = body.newObject("PartDesign::Pad", "Pad006")
pad7.Profile = sketch12
pad7.Length = 3

# Sketch on XY plane
sketch13 = body.newObject("Sketcher::SketchObject", "Sketch012")
sketch13.AttachmentSupport = (doc.getObject("XY_Plane"), [""])
sketch13.MapMode = "FlatFace"
sketch13.AttachmentOffset = App.Placement(App.Vector(0, 0, -20), App.Rotation())
sketch13.addGeometry([
    Part.Circle(App.Vector(0, -8, 0), App.Vector(0, 0, 1), 1),
    Part.Circle(App.Vector(0, 8, 0), App.Vector(0, 0, 1), 1),
], False)
sketch13.addConstraint([
    Sketcher.Constraint("Equal", 0, 1),
    Sketcher.Constraint("Symmetric", 0, 3, 1, 3, -1, 1),
    Sketcher.Constraint("PointOnObject", 0, 3, -2),
    Sketcher.Constraint("Diameter", 0, 2.0),
    Sketcher.Constraint("DistanceY", 0, 3, -1, 1, 8.0),
])
pocket6 = body.newObject("PartDesign::Pocket", "Pocket005")
pocket6.Profile = sketch13
pocket6.Length = 5
pocket6.Reversed = True

# Sketch on XY plane
sketch14 = body.newObject("Sketcher::SketchObject", "Sketch013")
sketch14.AttachmentSupport = (doc.getObject("XY_Plane"), [""])
sketch14.MapMode = "FlatFace"
sketch14.AttachmentOffset = App.Placement(App.Vector(0, 0, -20), App.Rotation())
sketch14.addGeometry([
    Part.ArcOfCircle(Part.Circle(App.Vector(24, -19, 0), App.Vector(0, 0, 1), 2), math.radians(180), math.radians(360)),
    Part.LineSegment(App.Vector(22, -19, 0), App.Vector(22, 19, 0)),
    Part.ArcOfCircle(Part.Circle(App.Vector(24, 19, 0), App.Vector(0, 0, 1), 2), math.radians(0), math.radians(180)),
    Part.LineSegment(App.Vector(26, 19, 0), App.Vector(26, -19, 0)),
], False)
sketch14.addConstraint([
    Sketcher.Constraint("Tangent", 0, 1, 1, 1),
    Sketcher.Constraint("Tangent", 1, 2, 2, 2),
    Sketcher.Constraint("Tangent", 2, 1, 3, 1),
    Sketcher.Constraint("Tangent", 3, 2, 0, 2),
    Sketcher.Constraint("Vertical", 1),
    Sketcher.Constraint("Vertical", 3),
    Sketcher.Constraint("Radius", 0, 2.0),
    Sketcher.Constraint("DistanceY", 1, 1, 1, 2, 38.0),
    Sketcher.Constraint("DistanceX", -1, 1, 0, 3, 24.0),
    Sketcher.Constraint("DistanceY", 0, 3, -1, 1, 19.0),
])
pocket7 = body.newObject("PartDesign::Pocket", "Pocket006")
pocket7.Profile = sketch14
pocket7.Length = 5
pocket7.Reversed = True

# Sketch on XY plane
sketch15 = body.newObject("Sketcher::SketchObject", "Sketch014")
sketch15.AttachmentSupport = (doc.getObject("XY_Plane"), [""])
sketch15.MapMode = "FlatFace"
sketch15.AttachmentOffset = App.Placement(App.Vector(0, 0, -20), App.Rotation())
sketch15.addGeometry([
    Part.ArcOfCircle(Part.Circle(App.Vector(24, -19, 0), App.Vector(0, 0, 1), 4), math.radians(180), math.radians(360)),  # 0
    Part.LineSegment(App.Vector(20, -19, 0), App.Vector(20, 19, 0)),  # 1
    Part.ArcOfCircle(Part.Circle(App.Vector(24, 19, 0), App.Vector(0, 0, 1), 4), math.radians(0), math.radians(180)),  # 2
    Part.LineSegment(App.Vector(28, 19, 0), App.Vector(28, -19, 0)),  # 3
    Part.ArcOfCircle(Part.Circle(App.Vector(24, -19, 0), App.Vector(0, 0, 1), 2), math.radians(180), math.radians(360)),  # 4
    Part.LineSegment(App.Vector(26, -19, 0), App.Vector(26, 19, 0)),  # 5
    Part.ArcOfCircle(Part.Circle(App.Vector(24, 19, 0), App.Vector(0, 0, 1), 2), math.radians(0), math.radians(180)),  # 6
    Part.LineSegment(App.Vector(22, 19, 0), App.Vector(22, -19, 0)),  # 7
], False)
sketch15.addConstraint([
    Sketcher.Constraint("Tangent", 0, 1, 1, 1),
    Sketcher.Constraint("Tangent", 1, 2, 2, 2),
    Sketcher.Constraint("Tangent", 2, 1, 3, 1),
    Sketcher.Constraint("Tangent", 3, 2, 0, 2),
    Sketcher.Constraint("Tangent", 4, 2, 5, 1),
    Sketcher.Constraint("Tangent", 5, 2, 6, 1),
    Sketcher.Constraint("Tangent", 6, 2, 7, 1),
    Sketcher.Constraint("Tangent", 7, 2, 4, 1),
    Sketcher.Constraint("Vertical", 1),
    Sketcher.Constraint("Vertical", 3),
    Sketcher.Constraint("Vertical", 5),
    Sketcher.Constraint("Vertical", 7),
    Sketcher.Constraint("Coincident", 4, 3, 0, 3),
    Sketcher.Constraint("Horizontal", 6, 3, 1, 2),
    Sketcher.Constraint("Radius", 0, 4.0),
    Sketcher.Constraint("Radius", 4, 2.0),
    Sketcher.Constraint("DistanceY", 1, 1, 1, 2, 38.0),
    Sketcher.Constraint("DistanceX", -1, 1, 0, 3, 24.0),
    Sketcher.Constraint("DistanceY", 0, 3, -1, 1, 19.0),
])
pad8 = body.newObject("PartDesign::Pad", "Pad007")
pad8.Profile = sketch15
pad8.Length = 2

# Sketch on XY plane
sketch16 = body.newObject("Sketcher::SketchObject", "Sketch015")
sketch16.AttachmentSupport = (doc.getObject("XY_Plane"), [""])
sketch16.MapMode = "FlatFace"
sketch16.AttachmentOffset = App.Placement(App.Vector(0, 0, -20), App.Rotation())
sketch16.addGeometry(Part.Circle(App.Vector(11, -16.5, 0), App.Vector(0, 0, 1), 2.5), False)
sketch16.addConstraint([
    Sketcher.Constraint("Diameter", 0, 5.0),
    Sketcher.Constraint("DistanceX", -1, 1, 0, 3, 11.0),
    Sketcher.Constraint("DistanceY", 0, 3, -1, 1, 16.5),
])
pocket8 = body.newObject("PartDesign::Pocket", "Pocket007")
pocket8.Profile = sketch16
pocket8.Length = 5
pocket8.Reversed = True

# Sketch on XY plane
sketch17 = body.newObject("Sketcher::SketchObject", "Sketch016")
sketch17.AttachmentSupport = (doc.getObject("XY_Plane"), [""])
sketch17.MapMode = "FlatFace"
sketch17.AttachmentOffset = App.Placement(App.Vector(0, 0, -20), App.Rotation())
sketch17.addGeometry([
    Part.Circle(App.Vector(11, -16.5, 0), App.Vector(0, 0, 1), 5.5),
    Part.Circle(App.Vector(11, -16.5, 0), App.Vector(0, 0, 1), 2.5),
], False)
sketch17.addConstraint([
    Sketcher.Constraint("Coincident", 1, 3, 0, 3),
    Sketcher.Constraint("Diameter", 0, 11.0),
    Sketcher.Constraint("Diameter", 1, 5.0),
    Sketcher.Constraint("DistanceX", -1, 1, 0, 3, 11.0),
    Sketcher.Constraint("DistanceY", 0, 3, -1, 1, 16.5),
])
pad9 = body.newObject("PartDesign::Pad", "Pad008")
pad9.Profile = sketch17
pad9.Length = 2
body2 = doc.addObject("PartDesign::Body", "Body001")
doc.recompute()

body.Placement = App.Placement(App.Vector(-216, 0, 0), App.Rotation(App.Vector(0, 0, 1), 0))
boolean = body2.newObject("PartDesign::Boolean", "Boolean")
boolean.Type = "Fuse"
boolean.addObjects([body])

doc.recompute()
